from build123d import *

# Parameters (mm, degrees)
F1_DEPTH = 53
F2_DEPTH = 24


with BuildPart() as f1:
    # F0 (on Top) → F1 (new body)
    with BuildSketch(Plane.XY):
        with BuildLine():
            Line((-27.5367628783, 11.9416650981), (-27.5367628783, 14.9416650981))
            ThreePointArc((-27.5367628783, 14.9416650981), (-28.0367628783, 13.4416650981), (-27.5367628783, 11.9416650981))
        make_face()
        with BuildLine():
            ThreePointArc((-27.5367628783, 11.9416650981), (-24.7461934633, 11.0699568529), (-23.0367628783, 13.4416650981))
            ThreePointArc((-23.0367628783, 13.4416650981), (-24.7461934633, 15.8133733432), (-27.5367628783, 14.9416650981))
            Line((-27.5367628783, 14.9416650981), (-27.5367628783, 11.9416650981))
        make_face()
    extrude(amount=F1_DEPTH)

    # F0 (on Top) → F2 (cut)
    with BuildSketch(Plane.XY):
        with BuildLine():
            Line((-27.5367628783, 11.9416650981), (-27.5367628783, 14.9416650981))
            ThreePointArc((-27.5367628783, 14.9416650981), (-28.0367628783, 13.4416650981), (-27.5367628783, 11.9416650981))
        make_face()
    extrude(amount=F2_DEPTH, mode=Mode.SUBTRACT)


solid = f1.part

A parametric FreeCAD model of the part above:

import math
import FreeCAD as App
import Part
import Sketcher
Q = App.Units.Quantity

doc = App.newDocument("Part")
params = doc.addObject("Spreadsheet::Sheet", "Params")
for row, (alias, value) in enumerate([
    ("sketch1_radius", "2.5 mm"),
    ("sketch1_width", "2 mm"),
    ("pad1_length", "53 mm"),
    ("sketch2_radius", "2.5 mm"),
    ("sketch2_height", "3 mm"),
    ("pocket1_length", "24 mm"),
], start=1):
    params.set(f"A{row}", alias)
    params.set(f"B{row}", "=" + value)
    params.setAlias(f"B{row}", alias)

body = doc.addObject("PartDesign::Body", "Body")

sketch1 = body.newObject("Sketcher::SketchObject", "Sketch")
sketch1.AttachmentSupport = (doc.getObject("XY_Plane"), [""])
sketch1.MapMode = "FlatFace"
sketch1.addGeometry([
    Part.ArcOfCircle(Part.Circle(App.Vector(-25.5, 13.4, 0), App.Vector(0, 0, 1), 2.5), math.radians(143), math.radians(217)),
    Part.ArcOfCircle(Part.Circle(App.Vector(-25.5, 13.4, 0), App.Vector(0, 0, 1), 2.5), math.radians(-143), math.radians(0)),
    Part.ArcOfCircle(Part.Circle(App.Vector(-25.5, 13.4, 0), App.Vector(0, 0, 1), 2.5), math.radians(0), math.radians(143)),
], False)
sketch1.addConstraint([
    Sketcher.Constraint("Tangent", 0, 2, 1, 1),
    Sketcher.Constraint("Tangent", 1, 2, 2, 1),
    Sketcher.Constraint("Tangent", 2, 2, 0, 1),
    Sketcher.Constraint("Horizontal", 2, 3, 1, 2),
    Sketcher.Constraint("Vertical", 0, 2, 2, 2),
    Sketcher.Constraint("Radius", 0, Q("2.5 mm")),
    Sketcher.Constraint("DistanceX", 0, 2, 0, 3, Q("2 mm")),
    Sketcher.Constraint("DistanceX", 0, 3, -1, 1, Q("25.536763 mm")),
    Sketcher.Constraint("DistanceY", -1, 1, 0, 3, Q("13.441665 mm")),
])
sketch1.setExpression("Constraints[5]", "Params.sketch1_radius")
sketch1.setExpression("Constraints[6]", "Params.sketch1_width")
pad1 = body.newObject("PartDesign::Pad", "Pad")
pad1.Profile = sketch1
pad1.setExpression("Length", "Params.pad1_length")

sketch2 = body.newObject("Sketcher::SketchObject", "Sketch001")
sketch2.AttachmentSupport = (doc.getObject("XY_Plane"), [""])
sketch2.MapMode = "FlatFace"
sketch2.addGeometry([
    Part.LineSegment(App.Vector(-27.5, 11.9, 0), App.Vector(-27.5, 14.9, 0)),
    Part.ArcOfCircle(Part.Circle(App.Vector(-25.5, 13.4, 0), App.Vector(0, 0, 1), 2.5), math.radians(143), math.radians(217)),
], False)
sketch2.addConstraint([
    Sketcher.Constraint("Coincident", 0, 1, 1, 2),
    Sketcher.Constraint("Coincident", 1, 1, 0, 2),
    Sketcher.Constraint("Vertical", 0),
    Sketcher.Constraint("Radius", 1, Q("2.5 mm")),
    Sketcher.Constraint("DistanceY", 0, 1, 0, 2, Q("3 mm")),
    Sketcher.Constraint("DistanceX", 1, 3, -1, 1, Q("25.536763 mm")),
    Sketcher.Constraint("DistanceY", -1, 1, 1, 3, Q("13.441665 mm")),
])
sketch2.setExpression("Constraints[3]", "Params.sketch2_radius")
sketch2.setExpression("Constraints[4]", "Params.sketch2_height")
pocket1 = body.newObject("PartDesign::Pocket", "Pocket")
pocket1.Profile = sketch2
pocket1.setExpression("Length", "Params.pocket1_length")
pocket1.Reversed = True

doc.recompute()
